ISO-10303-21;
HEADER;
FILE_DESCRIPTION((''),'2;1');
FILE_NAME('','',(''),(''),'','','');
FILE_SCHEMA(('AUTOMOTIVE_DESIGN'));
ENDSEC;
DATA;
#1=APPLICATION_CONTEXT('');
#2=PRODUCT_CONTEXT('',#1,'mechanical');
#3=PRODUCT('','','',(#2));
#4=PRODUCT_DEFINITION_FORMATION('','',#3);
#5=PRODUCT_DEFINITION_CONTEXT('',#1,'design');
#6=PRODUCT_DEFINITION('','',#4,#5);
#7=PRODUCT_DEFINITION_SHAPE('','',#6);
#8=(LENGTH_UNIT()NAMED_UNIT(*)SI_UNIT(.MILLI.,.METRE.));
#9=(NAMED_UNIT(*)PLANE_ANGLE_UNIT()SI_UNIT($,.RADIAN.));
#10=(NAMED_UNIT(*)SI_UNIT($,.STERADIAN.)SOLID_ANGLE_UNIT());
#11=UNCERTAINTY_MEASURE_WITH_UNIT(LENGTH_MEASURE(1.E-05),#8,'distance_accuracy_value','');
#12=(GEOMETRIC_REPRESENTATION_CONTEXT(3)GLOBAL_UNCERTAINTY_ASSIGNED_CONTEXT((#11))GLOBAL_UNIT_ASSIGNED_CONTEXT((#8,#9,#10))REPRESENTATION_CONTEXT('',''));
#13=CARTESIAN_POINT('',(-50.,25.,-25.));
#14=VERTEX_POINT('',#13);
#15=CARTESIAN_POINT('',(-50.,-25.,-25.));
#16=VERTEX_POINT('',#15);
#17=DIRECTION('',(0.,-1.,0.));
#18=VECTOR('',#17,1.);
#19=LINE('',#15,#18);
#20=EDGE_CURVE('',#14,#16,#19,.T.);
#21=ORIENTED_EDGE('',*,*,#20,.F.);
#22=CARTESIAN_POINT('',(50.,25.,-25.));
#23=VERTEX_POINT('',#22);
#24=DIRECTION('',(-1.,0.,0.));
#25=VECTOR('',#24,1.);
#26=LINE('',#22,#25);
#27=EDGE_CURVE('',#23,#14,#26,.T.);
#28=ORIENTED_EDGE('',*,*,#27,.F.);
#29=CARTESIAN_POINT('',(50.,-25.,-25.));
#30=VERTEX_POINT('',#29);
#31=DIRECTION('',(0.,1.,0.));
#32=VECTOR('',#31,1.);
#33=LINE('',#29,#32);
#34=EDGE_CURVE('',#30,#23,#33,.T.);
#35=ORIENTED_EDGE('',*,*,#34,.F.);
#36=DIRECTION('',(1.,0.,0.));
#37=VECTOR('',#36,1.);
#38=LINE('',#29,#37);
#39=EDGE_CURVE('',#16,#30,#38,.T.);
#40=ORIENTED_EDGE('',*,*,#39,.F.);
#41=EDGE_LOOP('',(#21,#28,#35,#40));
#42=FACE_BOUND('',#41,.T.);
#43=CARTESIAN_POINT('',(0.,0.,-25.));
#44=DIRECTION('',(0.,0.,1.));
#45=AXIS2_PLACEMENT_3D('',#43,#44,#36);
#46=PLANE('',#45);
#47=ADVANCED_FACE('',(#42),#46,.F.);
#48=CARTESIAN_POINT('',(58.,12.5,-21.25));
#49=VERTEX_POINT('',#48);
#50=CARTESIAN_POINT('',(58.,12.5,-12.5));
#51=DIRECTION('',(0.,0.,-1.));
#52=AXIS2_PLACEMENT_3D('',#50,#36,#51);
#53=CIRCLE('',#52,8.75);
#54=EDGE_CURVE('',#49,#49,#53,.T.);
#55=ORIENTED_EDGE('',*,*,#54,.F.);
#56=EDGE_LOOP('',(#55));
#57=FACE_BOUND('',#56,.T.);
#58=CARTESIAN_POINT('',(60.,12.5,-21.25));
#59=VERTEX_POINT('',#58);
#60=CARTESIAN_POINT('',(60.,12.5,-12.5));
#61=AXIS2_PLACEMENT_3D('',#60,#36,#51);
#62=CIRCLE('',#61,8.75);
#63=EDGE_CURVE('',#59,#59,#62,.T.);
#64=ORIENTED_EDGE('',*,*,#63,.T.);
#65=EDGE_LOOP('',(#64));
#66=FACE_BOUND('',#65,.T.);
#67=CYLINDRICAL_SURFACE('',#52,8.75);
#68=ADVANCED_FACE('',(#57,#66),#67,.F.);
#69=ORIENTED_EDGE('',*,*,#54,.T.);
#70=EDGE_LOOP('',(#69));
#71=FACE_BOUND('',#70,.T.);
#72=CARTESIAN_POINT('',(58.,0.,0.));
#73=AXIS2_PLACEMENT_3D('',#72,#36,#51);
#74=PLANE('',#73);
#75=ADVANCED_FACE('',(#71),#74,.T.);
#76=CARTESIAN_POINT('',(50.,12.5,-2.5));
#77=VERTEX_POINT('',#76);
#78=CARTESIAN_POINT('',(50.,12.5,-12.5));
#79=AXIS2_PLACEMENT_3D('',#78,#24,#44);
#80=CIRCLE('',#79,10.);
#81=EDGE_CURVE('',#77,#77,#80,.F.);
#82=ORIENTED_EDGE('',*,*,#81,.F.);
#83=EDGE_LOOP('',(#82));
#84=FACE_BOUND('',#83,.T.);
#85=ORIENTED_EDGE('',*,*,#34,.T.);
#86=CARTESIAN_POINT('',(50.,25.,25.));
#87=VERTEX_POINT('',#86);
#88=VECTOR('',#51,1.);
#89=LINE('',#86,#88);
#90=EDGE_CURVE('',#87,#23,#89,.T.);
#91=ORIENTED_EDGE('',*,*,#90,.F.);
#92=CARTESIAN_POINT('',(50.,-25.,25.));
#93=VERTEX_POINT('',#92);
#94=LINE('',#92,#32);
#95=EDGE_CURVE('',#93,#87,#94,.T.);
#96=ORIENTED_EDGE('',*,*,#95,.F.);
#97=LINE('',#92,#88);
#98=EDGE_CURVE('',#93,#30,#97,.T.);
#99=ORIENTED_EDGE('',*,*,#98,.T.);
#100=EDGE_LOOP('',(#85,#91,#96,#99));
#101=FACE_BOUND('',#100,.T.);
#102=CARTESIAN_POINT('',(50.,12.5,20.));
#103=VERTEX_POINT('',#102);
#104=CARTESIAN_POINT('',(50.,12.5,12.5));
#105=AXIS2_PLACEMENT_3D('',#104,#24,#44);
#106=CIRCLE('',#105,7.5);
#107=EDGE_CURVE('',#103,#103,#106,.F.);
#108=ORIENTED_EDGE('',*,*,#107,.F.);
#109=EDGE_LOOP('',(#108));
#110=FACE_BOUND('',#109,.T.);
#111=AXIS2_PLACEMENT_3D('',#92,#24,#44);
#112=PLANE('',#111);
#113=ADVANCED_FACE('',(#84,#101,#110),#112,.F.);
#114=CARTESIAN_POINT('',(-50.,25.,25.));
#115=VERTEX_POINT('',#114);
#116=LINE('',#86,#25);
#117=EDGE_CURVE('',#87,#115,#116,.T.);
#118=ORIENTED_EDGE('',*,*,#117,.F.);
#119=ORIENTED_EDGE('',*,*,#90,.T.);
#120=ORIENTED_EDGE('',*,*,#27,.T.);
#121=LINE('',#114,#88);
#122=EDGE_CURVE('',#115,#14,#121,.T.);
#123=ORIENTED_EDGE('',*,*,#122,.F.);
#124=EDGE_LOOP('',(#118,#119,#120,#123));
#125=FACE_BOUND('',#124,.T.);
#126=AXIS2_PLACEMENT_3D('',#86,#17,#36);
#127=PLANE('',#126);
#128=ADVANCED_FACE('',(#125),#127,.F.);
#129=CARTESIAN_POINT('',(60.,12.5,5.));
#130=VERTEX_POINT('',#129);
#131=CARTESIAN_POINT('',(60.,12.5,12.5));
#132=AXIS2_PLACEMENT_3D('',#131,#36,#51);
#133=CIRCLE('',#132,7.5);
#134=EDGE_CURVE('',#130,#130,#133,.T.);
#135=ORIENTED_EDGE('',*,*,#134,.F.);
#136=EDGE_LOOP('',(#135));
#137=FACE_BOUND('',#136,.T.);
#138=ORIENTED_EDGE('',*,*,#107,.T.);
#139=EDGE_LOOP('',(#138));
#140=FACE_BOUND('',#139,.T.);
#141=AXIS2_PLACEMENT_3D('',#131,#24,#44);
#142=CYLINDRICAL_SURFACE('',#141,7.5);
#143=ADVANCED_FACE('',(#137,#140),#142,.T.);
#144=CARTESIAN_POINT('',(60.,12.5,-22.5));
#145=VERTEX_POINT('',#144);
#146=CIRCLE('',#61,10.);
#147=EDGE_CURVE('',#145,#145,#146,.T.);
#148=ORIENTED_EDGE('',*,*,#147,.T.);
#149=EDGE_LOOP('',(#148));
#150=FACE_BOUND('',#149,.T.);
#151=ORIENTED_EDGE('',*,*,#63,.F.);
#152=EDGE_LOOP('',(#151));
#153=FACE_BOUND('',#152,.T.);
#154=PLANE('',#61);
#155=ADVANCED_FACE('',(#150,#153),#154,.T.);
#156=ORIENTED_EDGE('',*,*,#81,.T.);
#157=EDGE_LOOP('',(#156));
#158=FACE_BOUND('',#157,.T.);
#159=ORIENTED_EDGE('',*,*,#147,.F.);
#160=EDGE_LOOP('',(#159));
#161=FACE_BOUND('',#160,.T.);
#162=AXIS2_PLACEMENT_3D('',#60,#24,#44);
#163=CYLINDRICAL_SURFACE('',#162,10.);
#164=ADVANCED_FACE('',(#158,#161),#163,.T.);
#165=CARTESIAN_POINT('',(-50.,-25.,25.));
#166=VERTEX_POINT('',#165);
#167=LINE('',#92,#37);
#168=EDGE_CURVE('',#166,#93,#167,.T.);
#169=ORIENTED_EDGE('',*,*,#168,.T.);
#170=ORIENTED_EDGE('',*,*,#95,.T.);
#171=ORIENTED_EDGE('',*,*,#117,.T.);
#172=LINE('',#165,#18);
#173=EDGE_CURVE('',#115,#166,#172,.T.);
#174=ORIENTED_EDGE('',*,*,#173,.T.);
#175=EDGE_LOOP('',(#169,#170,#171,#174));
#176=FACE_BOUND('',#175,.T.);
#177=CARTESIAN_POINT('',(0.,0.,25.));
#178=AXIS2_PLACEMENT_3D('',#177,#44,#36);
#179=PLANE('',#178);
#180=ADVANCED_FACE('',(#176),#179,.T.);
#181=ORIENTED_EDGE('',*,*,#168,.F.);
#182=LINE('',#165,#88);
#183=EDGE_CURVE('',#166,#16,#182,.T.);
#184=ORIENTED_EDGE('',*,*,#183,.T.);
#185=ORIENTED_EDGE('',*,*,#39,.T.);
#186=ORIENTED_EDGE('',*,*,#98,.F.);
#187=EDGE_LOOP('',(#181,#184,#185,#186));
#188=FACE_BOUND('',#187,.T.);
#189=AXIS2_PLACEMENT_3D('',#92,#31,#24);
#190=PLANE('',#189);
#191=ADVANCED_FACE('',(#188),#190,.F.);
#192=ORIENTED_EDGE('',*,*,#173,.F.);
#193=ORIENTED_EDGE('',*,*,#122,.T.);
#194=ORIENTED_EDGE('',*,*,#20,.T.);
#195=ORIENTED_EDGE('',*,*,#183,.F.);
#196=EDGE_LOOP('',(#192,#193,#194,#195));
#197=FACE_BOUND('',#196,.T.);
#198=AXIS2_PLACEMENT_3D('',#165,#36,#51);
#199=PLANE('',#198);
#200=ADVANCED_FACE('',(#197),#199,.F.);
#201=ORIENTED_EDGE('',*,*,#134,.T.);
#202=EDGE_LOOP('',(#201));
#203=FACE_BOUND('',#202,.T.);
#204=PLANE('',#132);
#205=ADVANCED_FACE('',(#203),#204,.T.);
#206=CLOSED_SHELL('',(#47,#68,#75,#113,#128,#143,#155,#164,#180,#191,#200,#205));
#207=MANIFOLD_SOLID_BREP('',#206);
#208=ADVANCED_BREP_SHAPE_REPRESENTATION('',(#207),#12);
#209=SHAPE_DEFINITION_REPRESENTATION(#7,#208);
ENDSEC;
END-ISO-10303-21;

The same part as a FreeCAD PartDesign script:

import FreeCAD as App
import Part
import Sketcher

V = App.Vector
Q = App.Units.Quantity


def add_polygon(sketch, points):
    """Adds a closed chain of lines whose ends are joined by coincident constraints."""
    first, n = sketch.GeometryCount, len(points)
    for a, b in zip(points, points[1:] + points[:1]):
        sketch.addGeometry(Part.LineSegment(App.Vector(*a, 0), App.Vector(*b, 0)), False)
    for i in range(n):
        sketch.addConstraint(Sketcher.Constraint("Coincident", first + i, 2, first + (i + 1) % n, 1))

doc = App.newDocument("Part")
body = doc.addObject("PartDesign::Body", "Body")

sketch1 = body.newObject("Sketcher::SketchObject", "Sketch")
sketch1.AttachmentSupport = (doc.getObject("XY_Plane"), [""])
sketch1.MapMode = "FlatFace"
add_polygon(sketch1, [(-50, 25), (-50, -25), (50, -25), (50, 25)])
sketch1.addConstraint([
    Sketcher.Constraint("Vertical", 0),
    Sketcher.Constraint("Horizontal", 1),
    Sketcher.Constraint("Vertical", 2),
    Sketcher.Constraint("Horizontal", 3),
    Sketcher.Constraint("Symmetric", 0, 2, 2, 2, -1, 1),
    Sketcher.Constraint("DistanceX", 1, 1, 1, 2, Q("100 mm")),
    Sketcher.Constraint("DistanceY", 0, 2, 0, 1, Q("50 mm")),
])
pad1 = body.newObject("PartDesign::Pad", "Pad")
pad1.Profile = sketch1
pad1.Length = 50
pad1.Midplane = True

sketch2 = body.newObject("Sketcher::SketchObject", "Sketch001")
sketch2.AttachmentSupport = (doc.getObject("YZ_Plane"), [""])
sketch2.MapMode = "FlatFace"
sketch2.AttachmentOffset = App.Placement(V(0, 0, 50), App.Rotation())
sketch2.addGeometry([
    Part.Circle(V(12.5, -12.5, 0), V(0, 0, 1), 10),
    Part.Circle(V(12.5, 12.5, 0), V(0, 0, 1), 7.5),
], False)
sketch2.addConstraint([
    Sketcher.Constraint("Symmetric", 0, 3, 1, 3, -1),
    Sketcher.Constraint("Diameter", 0, Q("20 mm")),
    Sketcher.Constraint("Diameter", 1, Q("15 mm")),
    Sketcher.Constraint("DistanceY", 0, 3, 1, 3, Q("25 mm")),
    Sketcher.Constraint("DistanceX", -1, 1, 0, 3, Q("12.5 mm")),
])
pad2 = body.newObject("PartDesign::Pad", "Pad001")
pad2.Profile = sketch2
pad2.Length = 10

sketch3 = body.newObject("Sketcher::SketchObject", "Sketch002")
sketch3.AttachmentSupport = (doc.getObject("YZ_Plane"), [""])
sketch3.MapMode = "FlatFace"
sketch3.AttachmentOffset = App.Placement(V(0, 0, 60), App.Rotation())
sketch3.addGeometry(Part.Circle(V(12.5, -12.5, 0), V(0, 0, 1), 8.75), False)
sketch3.addConstraint([
    Sketcher.Constraint("Diameter", 0, Q("17.5 mm")),
    Sketcher.Constraint("DistanceX", -1, 1, 0, 3, Q("12.5 mm")),
    Sketcher.Constraint("DistanceY", 0, 3, -1, 1, Q("12.5 mm")),
])
pocket1 = body.newObject("PartDesign::Pocket", "Pocket")
pocket1.Profile = sketch3
pocket1.Length = 2

doc.recompute()
